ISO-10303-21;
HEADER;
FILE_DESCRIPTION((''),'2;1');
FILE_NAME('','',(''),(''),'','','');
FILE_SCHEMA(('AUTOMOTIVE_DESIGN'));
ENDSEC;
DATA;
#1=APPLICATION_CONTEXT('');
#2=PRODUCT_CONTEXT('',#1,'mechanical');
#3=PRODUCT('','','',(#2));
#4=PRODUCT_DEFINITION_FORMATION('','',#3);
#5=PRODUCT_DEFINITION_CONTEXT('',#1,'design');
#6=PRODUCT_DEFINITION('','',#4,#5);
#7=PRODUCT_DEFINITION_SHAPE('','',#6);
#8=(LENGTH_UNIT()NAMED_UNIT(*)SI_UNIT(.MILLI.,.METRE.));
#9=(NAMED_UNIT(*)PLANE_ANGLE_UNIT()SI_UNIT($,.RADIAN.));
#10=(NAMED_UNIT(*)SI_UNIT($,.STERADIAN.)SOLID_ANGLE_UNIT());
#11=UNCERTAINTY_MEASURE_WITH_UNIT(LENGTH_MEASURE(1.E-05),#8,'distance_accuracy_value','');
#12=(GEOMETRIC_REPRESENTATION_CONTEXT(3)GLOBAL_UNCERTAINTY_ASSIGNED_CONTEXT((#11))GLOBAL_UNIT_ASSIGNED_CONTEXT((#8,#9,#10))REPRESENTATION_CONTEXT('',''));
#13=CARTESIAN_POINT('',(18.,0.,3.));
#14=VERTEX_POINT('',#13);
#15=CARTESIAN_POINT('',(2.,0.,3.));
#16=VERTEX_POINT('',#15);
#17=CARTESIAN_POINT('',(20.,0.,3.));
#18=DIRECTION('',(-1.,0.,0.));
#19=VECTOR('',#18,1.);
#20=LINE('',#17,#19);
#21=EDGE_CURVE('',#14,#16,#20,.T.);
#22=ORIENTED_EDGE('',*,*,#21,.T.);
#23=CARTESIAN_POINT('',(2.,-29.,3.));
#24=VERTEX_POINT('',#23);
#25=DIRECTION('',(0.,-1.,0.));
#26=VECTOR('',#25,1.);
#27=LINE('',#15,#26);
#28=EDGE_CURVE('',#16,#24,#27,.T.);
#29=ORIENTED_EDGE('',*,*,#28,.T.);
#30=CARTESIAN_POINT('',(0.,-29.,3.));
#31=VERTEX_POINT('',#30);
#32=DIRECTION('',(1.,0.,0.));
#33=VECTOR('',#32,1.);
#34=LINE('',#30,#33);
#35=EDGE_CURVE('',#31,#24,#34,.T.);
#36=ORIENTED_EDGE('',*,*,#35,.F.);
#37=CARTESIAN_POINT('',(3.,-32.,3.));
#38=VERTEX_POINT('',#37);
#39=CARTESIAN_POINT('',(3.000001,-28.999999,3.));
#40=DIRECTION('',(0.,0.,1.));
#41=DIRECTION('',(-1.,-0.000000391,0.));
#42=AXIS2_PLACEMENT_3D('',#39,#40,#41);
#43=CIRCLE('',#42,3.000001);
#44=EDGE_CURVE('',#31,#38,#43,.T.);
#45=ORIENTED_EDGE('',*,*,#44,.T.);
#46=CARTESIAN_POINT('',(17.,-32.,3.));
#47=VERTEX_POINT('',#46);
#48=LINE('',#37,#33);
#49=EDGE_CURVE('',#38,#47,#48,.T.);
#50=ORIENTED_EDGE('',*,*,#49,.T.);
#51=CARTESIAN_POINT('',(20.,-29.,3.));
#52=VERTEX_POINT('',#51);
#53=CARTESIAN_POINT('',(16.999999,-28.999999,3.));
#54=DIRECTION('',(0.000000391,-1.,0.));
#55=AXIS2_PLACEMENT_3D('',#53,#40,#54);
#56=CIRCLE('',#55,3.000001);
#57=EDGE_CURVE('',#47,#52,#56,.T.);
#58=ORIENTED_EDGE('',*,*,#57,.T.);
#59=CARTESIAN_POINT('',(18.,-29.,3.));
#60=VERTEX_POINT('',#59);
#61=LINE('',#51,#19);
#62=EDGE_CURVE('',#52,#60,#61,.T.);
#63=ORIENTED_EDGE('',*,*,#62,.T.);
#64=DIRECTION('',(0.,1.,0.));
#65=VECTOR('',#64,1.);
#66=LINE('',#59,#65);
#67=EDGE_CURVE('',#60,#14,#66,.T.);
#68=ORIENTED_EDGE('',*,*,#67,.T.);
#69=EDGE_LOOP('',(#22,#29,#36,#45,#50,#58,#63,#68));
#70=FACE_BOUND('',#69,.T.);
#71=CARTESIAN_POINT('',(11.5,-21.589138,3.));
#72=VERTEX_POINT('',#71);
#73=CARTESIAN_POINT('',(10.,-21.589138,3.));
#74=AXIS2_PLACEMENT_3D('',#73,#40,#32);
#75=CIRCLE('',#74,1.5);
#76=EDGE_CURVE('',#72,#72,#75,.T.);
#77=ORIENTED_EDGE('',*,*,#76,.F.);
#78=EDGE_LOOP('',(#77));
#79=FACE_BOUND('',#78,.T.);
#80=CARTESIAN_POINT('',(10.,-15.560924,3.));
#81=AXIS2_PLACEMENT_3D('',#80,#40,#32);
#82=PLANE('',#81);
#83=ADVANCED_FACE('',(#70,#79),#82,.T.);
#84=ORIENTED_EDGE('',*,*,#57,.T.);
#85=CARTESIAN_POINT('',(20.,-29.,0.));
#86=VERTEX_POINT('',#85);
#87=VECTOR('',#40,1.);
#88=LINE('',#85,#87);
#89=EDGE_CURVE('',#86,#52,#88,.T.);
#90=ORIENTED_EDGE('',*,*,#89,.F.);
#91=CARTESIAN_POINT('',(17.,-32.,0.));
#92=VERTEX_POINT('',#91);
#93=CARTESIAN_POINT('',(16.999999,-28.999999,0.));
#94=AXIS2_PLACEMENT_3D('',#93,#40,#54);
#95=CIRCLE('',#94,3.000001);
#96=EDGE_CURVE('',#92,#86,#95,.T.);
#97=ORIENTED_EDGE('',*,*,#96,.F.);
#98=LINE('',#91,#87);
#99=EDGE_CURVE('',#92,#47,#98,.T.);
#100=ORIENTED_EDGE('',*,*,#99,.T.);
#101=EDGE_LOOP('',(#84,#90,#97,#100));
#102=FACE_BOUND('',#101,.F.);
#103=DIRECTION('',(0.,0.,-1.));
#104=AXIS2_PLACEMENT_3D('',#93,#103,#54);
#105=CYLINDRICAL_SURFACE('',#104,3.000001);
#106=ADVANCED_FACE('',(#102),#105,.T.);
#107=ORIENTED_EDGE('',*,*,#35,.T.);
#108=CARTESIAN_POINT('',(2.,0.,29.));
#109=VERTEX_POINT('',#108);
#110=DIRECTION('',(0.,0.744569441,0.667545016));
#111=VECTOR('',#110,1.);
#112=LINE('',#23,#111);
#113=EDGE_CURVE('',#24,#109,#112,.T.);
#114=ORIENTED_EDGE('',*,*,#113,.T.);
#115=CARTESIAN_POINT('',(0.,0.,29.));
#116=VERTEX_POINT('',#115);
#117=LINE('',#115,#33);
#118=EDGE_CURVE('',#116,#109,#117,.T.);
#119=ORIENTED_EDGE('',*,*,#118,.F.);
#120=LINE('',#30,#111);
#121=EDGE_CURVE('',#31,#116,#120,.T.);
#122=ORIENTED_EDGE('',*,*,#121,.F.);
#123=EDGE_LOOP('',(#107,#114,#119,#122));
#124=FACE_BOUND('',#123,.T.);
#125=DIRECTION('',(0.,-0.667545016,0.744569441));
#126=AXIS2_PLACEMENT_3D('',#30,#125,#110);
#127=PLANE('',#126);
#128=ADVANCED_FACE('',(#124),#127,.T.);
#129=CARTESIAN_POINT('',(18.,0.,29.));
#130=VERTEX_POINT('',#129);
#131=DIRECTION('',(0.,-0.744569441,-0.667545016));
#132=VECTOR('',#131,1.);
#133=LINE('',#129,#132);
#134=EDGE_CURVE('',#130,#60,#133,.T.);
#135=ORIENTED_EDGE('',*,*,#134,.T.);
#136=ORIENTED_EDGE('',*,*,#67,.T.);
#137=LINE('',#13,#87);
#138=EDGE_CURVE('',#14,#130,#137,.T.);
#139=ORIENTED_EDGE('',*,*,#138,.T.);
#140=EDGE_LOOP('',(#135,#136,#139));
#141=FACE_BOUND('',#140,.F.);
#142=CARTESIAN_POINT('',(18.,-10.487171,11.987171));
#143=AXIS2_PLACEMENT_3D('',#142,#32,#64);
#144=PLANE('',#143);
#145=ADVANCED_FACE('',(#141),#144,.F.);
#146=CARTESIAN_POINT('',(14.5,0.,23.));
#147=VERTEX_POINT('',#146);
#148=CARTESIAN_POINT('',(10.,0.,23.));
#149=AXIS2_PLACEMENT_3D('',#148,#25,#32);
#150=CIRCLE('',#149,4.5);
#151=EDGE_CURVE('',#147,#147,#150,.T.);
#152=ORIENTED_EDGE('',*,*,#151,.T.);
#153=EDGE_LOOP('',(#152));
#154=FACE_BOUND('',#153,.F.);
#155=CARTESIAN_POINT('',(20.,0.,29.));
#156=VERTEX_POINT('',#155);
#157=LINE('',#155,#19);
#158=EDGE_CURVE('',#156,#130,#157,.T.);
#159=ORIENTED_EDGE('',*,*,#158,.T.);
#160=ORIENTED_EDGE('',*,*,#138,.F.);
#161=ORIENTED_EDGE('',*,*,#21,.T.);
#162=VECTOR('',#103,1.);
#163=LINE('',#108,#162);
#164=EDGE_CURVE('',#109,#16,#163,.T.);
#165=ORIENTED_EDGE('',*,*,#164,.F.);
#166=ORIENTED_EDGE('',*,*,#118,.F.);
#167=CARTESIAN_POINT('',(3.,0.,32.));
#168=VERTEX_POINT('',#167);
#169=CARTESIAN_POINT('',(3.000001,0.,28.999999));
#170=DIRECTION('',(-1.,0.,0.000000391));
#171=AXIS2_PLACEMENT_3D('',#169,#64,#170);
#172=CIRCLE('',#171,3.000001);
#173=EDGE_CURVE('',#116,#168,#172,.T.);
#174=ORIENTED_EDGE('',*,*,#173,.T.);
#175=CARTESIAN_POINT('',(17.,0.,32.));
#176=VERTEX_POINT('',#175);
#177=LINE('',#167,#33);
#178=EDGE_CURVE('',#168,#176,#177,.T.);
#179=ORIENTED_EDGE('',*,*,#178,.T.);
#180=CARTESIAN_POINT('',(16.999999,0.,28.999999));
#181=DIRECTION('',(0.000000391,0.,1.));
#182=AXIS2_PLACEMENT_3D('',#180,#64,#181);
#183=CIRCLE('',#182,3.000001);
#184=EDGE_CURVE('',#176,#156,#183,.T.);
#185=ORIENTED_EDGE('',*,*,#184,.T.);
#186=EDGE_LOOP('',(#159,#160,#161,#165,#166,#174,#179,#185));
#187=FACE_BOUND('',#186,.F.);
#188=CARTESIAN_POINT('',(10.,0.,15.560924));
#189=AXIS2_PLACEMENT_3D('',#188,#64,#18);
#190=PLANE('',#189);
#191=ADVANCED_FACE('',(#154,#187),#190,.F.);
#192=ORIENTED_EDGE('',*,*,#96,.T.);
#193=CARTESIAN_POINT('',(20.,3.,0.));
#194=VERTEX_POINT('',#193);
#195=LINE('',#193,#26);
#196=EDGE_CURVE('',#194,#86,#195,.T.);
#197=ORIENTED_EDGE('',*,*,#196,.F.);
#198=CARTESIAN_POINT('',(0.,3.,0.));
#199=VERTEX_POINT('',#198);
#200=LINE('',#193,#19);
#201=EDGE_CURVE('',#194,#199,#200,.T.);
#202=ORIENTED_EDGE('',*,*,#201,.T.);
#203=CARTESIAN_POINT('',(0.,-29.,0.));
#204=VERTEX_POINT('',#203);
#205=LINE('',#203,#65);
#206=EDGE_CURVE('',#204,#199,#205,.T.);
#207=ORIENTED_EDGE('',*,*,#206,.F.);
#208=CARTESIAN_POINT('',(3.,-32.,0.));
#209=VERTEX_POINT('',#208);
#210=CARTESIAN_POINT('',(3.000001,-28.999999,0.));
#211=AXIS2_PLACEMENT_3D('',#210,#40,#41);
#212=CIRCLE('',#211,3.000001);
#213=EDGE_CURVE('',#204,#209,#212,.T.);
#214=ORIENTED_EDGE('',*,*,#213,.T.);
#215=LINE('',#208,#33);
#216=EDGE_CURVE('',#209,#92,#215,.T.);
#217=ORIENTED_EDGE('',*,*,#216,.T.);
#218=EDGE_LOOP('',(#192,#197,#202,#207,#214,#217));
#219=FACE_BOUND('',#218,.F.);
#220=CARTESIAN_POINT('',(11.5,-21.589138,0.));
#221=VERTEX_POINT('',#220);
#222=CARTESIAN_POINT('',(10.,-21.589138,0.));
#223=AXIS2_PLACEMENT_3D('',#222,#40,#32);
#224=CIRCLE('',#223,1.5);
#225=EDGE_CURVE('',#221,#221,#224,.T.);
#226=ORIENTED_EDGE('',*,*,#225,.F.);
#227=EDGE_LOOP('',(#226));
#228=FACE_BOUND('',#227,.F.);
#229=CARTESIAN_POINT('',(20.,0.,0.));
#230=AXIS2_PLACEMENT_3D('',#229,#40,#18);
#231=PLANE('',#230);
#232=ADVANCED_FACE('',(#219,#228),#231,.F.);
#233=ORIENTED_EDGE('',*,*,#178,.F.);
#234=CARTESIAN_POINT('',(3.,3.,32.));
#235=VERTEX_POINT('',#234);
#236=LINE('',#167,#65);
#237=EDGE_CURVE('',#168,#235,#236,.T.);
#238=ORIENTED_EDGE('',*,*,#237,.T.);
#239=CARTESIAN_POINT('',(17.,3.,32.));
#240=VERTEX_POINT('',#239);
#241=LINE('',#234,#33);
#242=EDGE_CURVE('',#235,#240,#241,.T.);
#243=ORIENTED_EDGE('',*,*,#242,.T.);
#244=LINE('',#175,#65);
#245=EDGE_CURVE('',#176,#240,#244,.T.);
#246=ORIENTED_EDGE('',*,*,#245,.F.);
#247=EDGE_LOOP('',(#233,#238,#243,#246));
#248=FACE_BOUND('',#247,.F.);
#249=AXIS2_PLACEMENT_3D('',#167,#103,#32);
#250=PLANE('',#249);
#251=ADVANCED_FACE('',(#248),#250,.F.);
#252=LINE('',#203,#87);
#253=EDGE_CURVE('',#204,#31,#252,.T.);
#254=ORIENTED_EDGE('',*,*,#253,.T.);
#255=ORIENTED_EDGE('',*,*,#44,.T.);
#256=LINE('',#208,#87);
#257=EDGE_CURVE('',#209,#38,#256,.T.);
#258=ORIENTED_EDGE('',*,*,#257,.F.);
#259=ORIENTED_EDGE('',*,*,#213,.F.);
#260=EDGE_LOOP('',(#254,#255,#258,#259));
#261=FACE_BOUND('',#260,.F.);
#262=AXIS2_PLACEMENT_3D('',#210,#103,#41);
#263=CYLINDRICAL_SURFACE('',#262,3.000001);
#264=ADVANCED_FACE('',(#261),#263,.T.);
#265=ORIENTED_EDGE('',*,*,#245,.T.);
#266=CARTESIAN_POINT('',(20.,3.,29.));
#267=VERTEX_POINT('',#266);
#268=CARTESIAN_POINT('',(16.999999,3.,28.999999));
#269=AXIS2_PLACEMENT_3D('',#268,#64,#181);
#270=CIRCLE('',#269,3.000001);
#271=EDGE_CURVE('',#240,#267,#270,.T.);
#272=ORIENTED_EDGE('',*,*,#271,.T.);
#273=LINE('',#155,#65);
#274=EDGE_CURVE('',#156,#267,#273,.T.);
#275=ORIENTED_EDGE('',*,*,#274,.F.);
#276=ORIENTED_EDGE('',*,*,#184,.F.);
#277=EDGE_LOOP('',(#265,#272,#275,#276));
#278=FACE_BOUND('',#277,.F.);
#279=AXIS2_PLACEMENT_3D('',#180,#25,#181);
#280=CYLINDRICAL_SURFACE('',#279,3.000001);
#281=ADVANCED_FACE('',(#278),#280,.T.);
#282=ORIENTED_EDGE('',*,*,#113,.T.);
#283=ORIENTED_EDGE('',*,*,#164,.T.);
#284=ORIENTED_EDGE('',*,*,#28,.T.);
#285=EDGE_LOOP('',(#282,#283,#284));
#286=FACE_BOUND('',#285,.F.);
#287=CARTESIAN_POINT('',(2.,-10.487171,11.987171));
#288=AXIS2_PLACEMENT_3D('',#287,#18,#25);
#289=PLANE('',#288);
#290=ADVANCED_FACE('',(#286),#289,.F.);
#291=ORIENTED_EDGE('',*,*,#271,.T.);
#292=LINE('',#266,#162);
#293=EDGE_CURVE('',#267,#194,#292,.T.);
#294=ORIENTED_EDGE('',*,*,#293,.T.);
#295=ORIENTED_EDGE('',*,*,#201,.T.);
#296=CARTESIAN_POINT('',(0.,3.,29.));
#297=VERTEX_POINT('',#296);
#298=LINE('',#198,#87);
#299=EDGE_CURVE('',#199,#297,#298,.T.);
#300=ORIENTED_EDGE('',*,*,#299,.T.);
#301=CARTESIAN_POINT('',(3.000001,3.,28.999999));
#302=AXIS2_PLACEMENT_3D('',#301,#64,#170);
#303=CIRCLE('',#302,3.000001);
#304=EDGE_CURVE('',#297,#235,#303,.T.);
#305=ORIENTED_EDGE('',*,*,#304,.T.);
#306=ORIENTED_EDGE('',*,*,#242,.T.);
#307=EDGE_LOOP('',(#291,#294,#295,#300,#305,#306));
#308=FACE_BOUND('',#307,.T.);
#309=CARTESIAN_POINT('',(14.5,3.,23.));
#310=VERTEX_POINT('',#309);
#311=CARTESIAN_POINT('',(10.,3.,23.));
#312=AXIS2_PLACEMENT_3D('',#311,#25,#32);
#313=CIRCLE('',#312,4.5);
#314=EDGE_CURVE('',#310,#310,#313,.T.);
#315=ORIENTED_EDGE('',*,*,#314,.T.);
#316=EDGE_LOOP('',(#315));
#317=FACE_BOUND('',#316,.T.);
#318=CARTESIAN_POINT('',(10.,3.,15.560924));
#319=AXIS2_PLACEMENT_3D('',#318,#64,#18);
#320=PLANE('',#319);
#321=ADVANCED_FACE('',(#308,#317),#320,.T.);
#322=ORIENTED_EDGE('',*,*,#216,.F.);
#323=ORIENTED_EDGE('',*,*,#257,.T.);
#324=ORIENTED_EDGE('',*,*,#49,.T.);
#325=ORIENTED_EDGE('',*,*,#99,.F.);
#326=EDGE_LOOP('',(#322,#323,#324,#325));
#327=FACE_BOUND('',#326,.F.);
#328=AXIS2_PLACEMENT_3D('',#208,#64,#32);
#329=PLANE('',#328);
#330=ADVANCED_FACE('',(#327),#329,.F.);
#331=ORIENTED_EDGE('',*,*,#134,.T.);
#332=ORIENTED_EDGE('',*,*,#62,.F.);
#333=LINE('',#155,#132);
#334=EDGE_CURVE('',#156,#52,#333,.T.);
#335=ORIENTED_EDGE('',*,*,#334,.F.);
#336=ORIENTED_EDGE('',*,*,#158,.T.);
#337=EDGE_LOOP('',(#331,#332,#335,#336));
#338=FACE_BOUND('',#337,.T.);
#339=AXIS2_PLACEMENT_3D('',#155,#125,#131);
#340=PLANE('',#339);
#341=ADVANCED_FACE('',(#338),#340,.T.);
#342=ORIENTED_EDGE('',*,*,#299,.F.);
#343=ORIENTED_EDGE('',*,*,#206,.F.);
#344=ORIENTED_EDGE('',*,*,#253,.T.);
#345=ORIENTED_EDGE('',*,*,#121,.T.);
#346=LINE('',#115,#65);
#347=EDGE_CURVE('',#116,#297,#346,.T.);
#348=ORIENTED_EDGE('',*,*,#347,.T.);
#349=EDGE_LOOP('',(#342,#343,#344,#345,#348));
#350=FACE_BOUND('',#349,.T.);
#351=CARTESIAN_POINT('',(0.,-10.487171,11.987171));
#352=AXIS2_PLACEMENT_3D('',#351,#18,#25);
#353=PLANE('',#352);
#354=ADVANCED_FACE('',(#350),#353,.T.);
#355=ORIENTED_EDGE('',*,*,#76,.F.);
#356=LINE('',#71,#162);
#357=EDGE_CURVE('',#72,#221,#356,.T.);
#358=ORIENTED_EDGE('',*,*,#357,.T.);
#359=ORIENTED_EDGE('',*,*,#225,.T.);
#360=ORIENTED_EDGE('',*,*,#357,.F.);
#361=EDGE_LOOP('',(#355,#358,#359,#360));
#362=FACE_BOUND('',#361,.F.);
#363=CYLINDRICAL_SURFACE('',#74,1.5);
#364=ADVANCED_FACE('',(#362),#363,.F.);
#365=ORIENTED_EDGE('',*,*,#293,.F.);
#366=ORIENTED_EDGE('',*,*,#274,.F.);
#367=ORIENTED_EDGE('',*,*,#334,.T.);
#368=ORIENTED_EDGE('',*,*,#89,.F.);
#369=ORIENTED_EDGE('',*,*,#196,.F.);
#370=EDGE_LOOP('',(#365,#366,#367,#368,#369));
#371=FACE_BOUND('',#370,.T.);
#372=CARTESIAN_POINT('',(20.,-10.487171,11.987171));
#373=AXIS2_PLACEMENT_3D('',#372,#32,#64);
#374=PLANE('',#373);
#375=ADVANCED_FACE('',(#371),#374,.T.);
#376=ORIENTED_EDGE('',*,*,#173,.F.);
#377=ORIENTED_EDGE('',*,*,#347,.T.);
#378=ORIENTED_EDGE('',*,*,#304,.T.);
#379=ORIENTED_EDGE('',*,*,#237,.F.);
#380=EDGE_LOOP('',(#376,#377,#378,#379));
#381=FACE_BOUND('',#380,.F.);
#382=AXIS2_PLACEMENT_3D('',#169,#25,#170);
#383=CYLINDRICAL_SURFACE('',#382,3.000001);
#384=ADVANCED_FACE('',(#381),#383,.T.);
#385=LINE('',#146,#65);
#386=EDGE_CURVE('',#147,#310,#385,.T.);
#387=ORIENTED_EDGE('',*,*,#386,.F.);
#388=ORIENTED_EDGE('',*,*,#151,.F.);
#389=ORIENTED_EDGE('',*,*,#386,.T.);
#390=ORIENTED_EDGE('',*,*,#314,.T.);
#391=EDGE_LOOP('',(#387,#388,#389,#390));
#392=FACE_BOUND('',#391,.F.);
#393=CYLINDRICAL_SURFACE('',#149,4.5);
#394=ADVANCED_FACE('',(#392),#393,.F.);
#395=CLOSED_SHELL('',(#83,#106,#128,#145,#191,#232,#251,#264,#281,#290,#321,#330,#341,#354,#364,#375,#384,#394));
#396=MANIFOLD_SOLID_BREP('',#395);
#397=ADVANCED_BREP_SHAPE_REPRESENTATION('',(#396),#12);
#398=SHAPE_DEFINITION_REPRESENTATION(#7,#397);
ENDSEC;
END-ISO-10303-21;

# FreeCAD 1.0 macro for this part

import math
import FreeCAD as App
import Part
import Sketcher
Q = App.Units.Quantity

doc = App.newDocument("Part")
body = doc.addObject("PartDesign::Body", "Body")

# Sketch on XY plane
sketch1 = body.newObject("Sketcher::SketchObject", "Sketch")
sketch1.AttachmentSupport = (doc.getObject("XY_Plane"), [""])
sketch1.MapMode = "FlatFace"
sketch1.addGeometry(Part.LineSegment(App.Vector(20, 0, 0), App.Vector(0, 0, 0)), False)
sketch1.addGeometry(Part.LineSegment(App.Vector(0, 0, 0), App.Vector(0, -29, 0)), False)
sketch1.addGeometry(Part.ArcOfCircle(Part.Circle(App.Vector(3, -29, 0), App.Vector(0, 0, 1), 3), math.radians(-180), math.radians(-90)), False)
sketch1.addGeometry(Part.LineSegment(App.Vector(3, -32, 0), App.Vector(17, -32, 0)), False)
sketch1.addGeometry(Part.ArcOfCircle(Part.Circle(App.Vector(17, -29, 0), App.Vector(0, 0, 1), 3), math.radians(-90), math.radians(0)), False)
sketch1.addGeometry(Part.LineSegment(App.Vector(20, -29, 0), App.Vector(20, 0, 0)), False)
sketch1.addConstraint(Sketcher.Constraint("Coincident", 0, 2, 1, 1))
sketch1.addConstraint(Sketcher.Constraint("Tangent", 1, 2, 2, 1))
sketch1.addConstraint(Sketcher.Constraint("Tangent", 2, 2, 3, 1))
sketch1.addConstraint(Sketcher.Constraint("Tangent", 3, 2, 4, 1))
sketch1.addConstraint(Sketcher.Constraint("Tangent", 4, 2, 5, 1))
sketch1.addConstraint(Sketcher.Constraint("Coincident", 5, 2, 0, 1))
sketch1.addConstraint(Sketcher.Constraint("Horizontal", 0))
sketch1.addConstraint(Sketcher.Constraint("Vertical", 1))
sketch1.addConstraint(Sketcher.Constraint("Horizontal", 3))
sketch1.addConstraint(Sketcher.Constraint("Vertical", 5))
sketch1.addConstraint(Sketcher.Constraint("Coincident", 0, 2, -1, 1))
sketch1.addConstraint(Sketcher.Constraint("Equal", 2, 4))
sketch1.addConstraint(Sketcher.Constraint("Radius", 2, Q("3.000001 mm")))
sketch1.addConstraint(Sketcher.Constraint("DistanceX", 0, 2, 0, 1, Q("20 mm")))
sketch1.addConstraint(Sketcher.Constraint("DistanceY", 1, 2, 1, 1, Q("29 mm")))
pad1 = body.newObject("PartDesign::Pad", "Pad")
pad1.Profile = sketch1
pad1.Length = 3

# Sketch on XZ plane
sketch2 = body.newObject("Sketcher::SketchObject", "Sketch001")
sketch2.AttachmentSupport = (doc.getObject("XZ_Plane"), [""])
sketch2.MapMode = "FlatFace"
sketch2.addGeometry(Part.LineSegment(App.Vector(20, 0, 0), App.Vector(0, 0, 0)), False)
sketch2.addGeometry(Part.LineSegment(App.Vector(0, 0, 0), App.Vector(0, 29, 0)), False)
sketch2.addGeometry(Part.ArcOfCircle(Part.Circle(App.Vector(3, 29, 0), App.Vector(0, 0, 1), 3), math.radians(90), math.radians(180)), False)
sketch2.addGeometry(Part.LineSegment(App.Vector(3, 32, 0), App.Vector(17, 32, 0)), False)
sketch2.addGeometry(Part.ArcOfCircle(Part.Circle(App.Vector(17, 29, 0), App.Vector(0, 0, 1), 3), math.radians(0), math.radians(90)), False)
sketch2.addGeometry(Part.LineSegment(App.Vector(20, 29, 0), App.Vector(20, 0, 0)), False)
sketch2.addConstraint(Sketcher.Constraint("Coincident", 0, 2, 1, 1))
sketch2.addConstraint(Sketcher.Constraint("Tangent", 1, 2, 2, 2))
sketch2.addConstraint(Sketcher.Constraint("Tangent", 2, 1, 3, 1))
sketch2.addConstraint(Sketcher.Constraint("Tangent", 3, 2, 4, 2))
sketch2.addConstraint(Sketcher.Constraint("Tangent", 4, 1, 5, 1))
sketch2.addConstraint(Sketcher.Constraint("Coincident", 5, 2, 0, 1))
sketch2.addConstraint(Sketcher.Constraint("Horizontal", 0))
sketch2.addConstraint(Sketcher.Constraint("Vertical", 1))
sketch2.addConstraint(Sketcher.Constraint("Horizontal", 3))
sketch2.addConstraint(Sketcher.Constraint("Vertical", 5))
sketch2.addConstraint(Sketcher.Constraint("Coincident", 0, 2, -1, 1))
sketch2.addConstraint(Sketcher.Constraint("Equal", 2, 4))
sketch2.addConstraint(Sketcher.Constraint("Radius", 2, Q("3.000001 mm")))
sketch2.addConstraint(Sketcher.Constraint("DistanceX", 0, 2, 0, 1, Q("20 mm")))
sketch2.addConstraint(Sketcher.Constraint("DistanceY", 1, 1, 1, 2, Q("29 mm")))
pad2 = body.newObject("PartDesign::Pad", "Pad001")
pad2.Profile = sketch2
pad2.Length = 3
pad2.Reversed = True

# Sketch on YZ plane
sketch3 = body.newObject("Sketcher::SketchObject", "Sketch002")
sketch3.AttachmentSupport = (doc.getObject("YZ_Plane"), [""])
sketch3.MapMode = "FlatFace"
sketch3.addGeometry(Part.LineSegment(App.Vector(-29, 3, 0), App.Vector(0, 29, 0)), False)
sketch3.addGeometry(Part.LineSegment(App.Vector(0, 29, 0), App.Vector(0, 3, 0)), False)
sketch3.addGeometry(Part.LineSegment(App.Vector(0, 3, 0), App.Vector(-29, 3, 0)), False)
sketch3.addConstraint(Sketcher.Constraint("Coincident", 0, 2, 1, 1))
sketch3.addConstraint(Sketcher.Constraint("Coincident", 1, 2, 2, 1))
sketch3.addConstraint(Sketcher.Constraint("Coincident", 2, 2, 0, 1))
sketch3.addConstraint(Sketcher.Constraint("Vertical", 1))
sketch3.addConstraint(Sketcher.Constraint("Horizontal", 2))
sketch3.addConstraint(Sketcher.Constraint("PointOnObject", 0, 2, -2))
sketch3.addConstraint(Sketcher.Constraint("DistanceX", 2, 2, 2, 1, Q("29 mm")))
sketch3.addConstraint(Sketcher.Constraint("DistanceY", 1, 2, 1, 1, Q("26 mm")))
sketch3.addConstraint(Sketcher.Constraint("DistanceY", -1, 1, 0, 2, Q("29 mm")))
pad3 = body.newObject("PartDesign::Pad", "Pad002")
pad3.Profile = sketch3
pad3.Length = 2

# Sketch on YZ plane
sketch4 = body.newObject("Sketcher::SketchObject", "Sketch003")
sketch4.AttachmentSupport = (doc.getObject("YZ_Plane"), [""])
sketch4.MapMode = "FlatFace"
sketch4.AttachmentOffset = App.Placement(App.Vector(0, 0, 20), App.Rotation())
sketch4.addGeometry(Part.LineSegment(App.Vector(0, 3, 0), App.Vector(0, 29, 0)), False)
sketch4.addGeometry(Part.LineSegment(App.Vector(0, 29, 0), App.Vector(-29, 3, 0)), False)
sketch4.addGeometry(Part.LineSegment(App.Vector(-29, 3, 0), App.Vector(0, 3, 0)), False)
sketch4.addConstraint(Sketcher.Constraint("Coincident", 0, 2, 1, 1))
sketch4.addConstraint(Sketcher.Constraint("Coincident", 1, 2, 2, 1))
sketch4.addConstraint(Sketcher.Constraint("Coincident", 2, 2, 0, 1))
sketch4.addConstraint(Sketcher.Constraint("Vertical", 0))
sketch4.addConstraint(Sketcher.Constraint("Horizontal", 2))
sketch4.addConstraint(Sketcher.Constraint("PointOnObject", 0, 2, -2))
sketch4.addConstraint(Sketcher.Constraint("DistanceX", 2, 1, 2, 2, Q("29 mm")))
sketch4.addConstraint(Sketcher.Constraint("DistanceY", 0, 1, 0, 2, Q("26 mm")))
sketch4.addConstraint(Sketcher.Constraint("DistanceY", -1, 1, 0, 2, Q("29 mm")))
pad4 = body.newObject("PartDesign::Pad", "Pad003")
pad4.Profile = sketch4
pad4.Length = 2
pad4.Reversed = True

# Sketch on XY plane
sketch5 = body.newObject("Sketcher::SketchObject", "Sketch004")
sketch5.AttachmentSupport = (doc.getObject("XY_Plane"), [""])
sketch5.MapMode = "FlatFace"
sketch5.AttachmentOffset = App.Placement(App.Vector(0, 0, 3), App.Rotation())
sketch5.addGeometry(Part.Circle(App.Vector(10, -21.6, 0), App.Vector(0, 0, 1), 1.5), False)
sketch5.addConstraint(Sketcher.Constraint("Diameter", 0, Q("3 mm")))
sketch5.addConstraint(Sketcher.Constraint("DistanceX", -1, 1, 0, 3, Q("10 mm")))
sketch5.addConstraint(Sketcher.Constraint("DistanceY", 0, 3, -1, 1, Q("21.589138 mm")))
pocket1 = body.newObject("PartDesign::Pocket", "Pocket")
pocket1.Profile = sketch5
pocket1.Length = 25

# Sketch on XZ plane
sketch6 = body.newObject("Sketcher::SketchObject", "Sketch005")
sketch6.AttachmentSupport = (doc.getObject("XZ_Plane"), [""])
sketch6.MapMode = "FlatFace"
sketch6.addGeometry(Part.Circle(App.Vector(10, 23, 0), App.Vector(0, 0, 1), 4.5), False)
sketch6.addConstraint(Sketcher.Constraint("Diameter", 0, Q("9 mm")))
sketch6.addConstraint(Sketcher.Constraint("DistanceX", -1, 1, 0, 3, Q("10 mm")))
sketch6.addConstraint(Sketcher.Constraint("DistanceY", -1, 1, 0, 3, Q("23 mm")))
pocket2 = body.newObject("PartDesign::Pocket", "Pocket001")
pocket2.Profile = sketch6
pocket2.Length = 25

doc.recompute()
